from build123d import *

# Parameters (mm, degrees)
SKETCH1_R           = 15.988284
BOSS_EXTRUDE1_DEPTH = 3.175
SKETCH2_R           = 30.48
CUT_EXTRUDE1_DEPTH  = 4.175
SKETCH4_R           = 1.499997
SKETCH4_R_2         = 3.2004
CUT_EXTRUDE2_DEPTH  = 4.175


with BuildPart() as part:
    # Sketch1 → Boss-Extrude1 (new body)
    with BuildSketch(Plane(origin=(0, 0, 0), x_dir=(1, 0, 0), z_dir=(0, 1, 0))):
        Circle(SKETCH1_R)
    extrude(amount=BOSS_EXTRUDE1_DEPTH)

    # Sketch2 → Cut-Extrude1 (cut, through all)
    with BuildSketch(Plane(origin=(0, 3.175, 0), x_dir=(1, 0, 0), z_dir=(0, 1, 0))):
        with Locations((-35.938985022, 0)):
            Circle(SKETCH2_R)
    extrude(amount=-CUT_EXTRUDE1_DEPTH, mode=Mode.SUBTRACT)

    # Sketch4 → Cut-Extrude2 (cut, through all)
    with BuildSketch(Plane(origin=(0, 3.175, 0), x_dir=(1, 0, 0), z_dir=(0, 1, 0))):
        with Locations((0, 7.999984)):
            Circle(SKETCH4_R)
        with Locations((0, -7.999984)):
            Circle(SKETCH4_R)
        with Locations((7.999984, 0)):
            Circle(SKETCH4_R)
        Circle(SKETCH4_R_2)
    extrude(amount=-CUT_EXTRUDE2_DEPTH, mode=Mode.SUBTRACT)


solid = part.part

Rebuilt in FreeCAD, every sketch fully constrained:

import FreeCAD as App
import Part
import Sketcher

V = App.Vector
Q = App.Units.Quantity

doc = App.newDocument("Part")
body = doc.addObject("PartDesign::Body", "Body")

sketch1 = body.newObject("Sketcher::SketchObject", "Sketch")
sketch1.AttachmentSupport = (doc.getObject("XZ_Plane"), [""])
sketch1.MapMode = "FlatFace"
sketch1.addGeometry(Part.Circle(V(0, 0, 0), V(0, 0, 1), 16), False)
sketch1.addConstraint([
    Sketcher.Constraint("Coincident", 0, 3, -1, 1),
    Sketcher.Constraint("Diameter", 0, 31.976568),
])
pad1 = body.newObject("PartDesign::Pad", "Pad")
pad1.Profile = sketch1
pad1.Length = Q("0.125 in")
pad1.Reversed = True

sketch2 = body.newObject("Sketcher::SketchObject", "Sketch001")
sketch2.AttachmentSupport = (doc.getObject("XZ_Plane"), [""])
sketch2.MapMode = "FlatFace"
sketch2.AttachmentOffset = App.Placement(V(0, 0, -0.125 * 25.4), App.Rotation())
sketch2.addGeometry(Part.Circle(V(-36, 0, 0), V(0, 0, 1), 30), False)
sketch2.addConstraint([
    Sketcher.Constraint("PointOnObject", 0, 3, -1),
    Sketcher.Constraint("Diameter", 0, Q("2.4 in")),
    Sketcher.Constraint("DistanceX", 0, 3, -1, 1, 35.938985),
])
pocket1 = body.newObject("PartDesign::Pocket", "Pocket")
pocket1.Profile = sketch2
pocket1.Type = "ThroughAll"
pocket1.Reversed = True

sketch3 = body.newObject("Sketcher::SketchObject", "Sketch002")
sketch3.AttachmentSupport = (doc.getObject("XZ_Plane"), [""])
sketch3.MapMode = "FlatFace"
sketch3.AttachmentOffset = App.Placement(V(0, 0, -0.125 * 25.4), App.Rotation())
sketch3.addGeometry([
    Part.Circle(V(0, -8, 0), V(0, 0, 1), 1.5),
    Part.Circle(V(0, 8, 0), V(0, 0, 1), 1.5),
    Part.Circle(V(8, 0, 0), V(0, 0, 1), 1.5),
    Part.Circle(V(0, 0, 0), V(0, 0, 1), 3.2),
], False)
sketch3.addConstraint([
    Sketcher.Constraint("Coincident", 3, 3, -1, 1),
    Sketcher.Constraint("Equal", 0, 1),
    Sketcher.Constraint("Equal", 1, 2),
    Sketcher.Constraint("Symmetric", 0, 3, 1, 3, -1, 1),
    Sketcher.Constraint("PointOnObject", 0, 3, -2),
    Sketcher.Constraint("PointOnObject", 2, 3, -1),
    Sketcher.Constraint("Diameter", 3, Q("0.252 in")),
    Sketcher.Constraint("Diameter", 0, 2.999994),
    Sketcher.Constraint("DistanceY", 0, 3, 1, 3, 15.999968),
    Sketcher.Constraint("DistanceX", -1, 1, 2, 3, 7.999984),
])
pocket2 = body.newObject("PartDesign::Pocket", "Pocket001")
pocket2.Profile = sketch3
pocket2.Type = "ThroughAll"
pocket2.Reversed = True

doc.recompute()
